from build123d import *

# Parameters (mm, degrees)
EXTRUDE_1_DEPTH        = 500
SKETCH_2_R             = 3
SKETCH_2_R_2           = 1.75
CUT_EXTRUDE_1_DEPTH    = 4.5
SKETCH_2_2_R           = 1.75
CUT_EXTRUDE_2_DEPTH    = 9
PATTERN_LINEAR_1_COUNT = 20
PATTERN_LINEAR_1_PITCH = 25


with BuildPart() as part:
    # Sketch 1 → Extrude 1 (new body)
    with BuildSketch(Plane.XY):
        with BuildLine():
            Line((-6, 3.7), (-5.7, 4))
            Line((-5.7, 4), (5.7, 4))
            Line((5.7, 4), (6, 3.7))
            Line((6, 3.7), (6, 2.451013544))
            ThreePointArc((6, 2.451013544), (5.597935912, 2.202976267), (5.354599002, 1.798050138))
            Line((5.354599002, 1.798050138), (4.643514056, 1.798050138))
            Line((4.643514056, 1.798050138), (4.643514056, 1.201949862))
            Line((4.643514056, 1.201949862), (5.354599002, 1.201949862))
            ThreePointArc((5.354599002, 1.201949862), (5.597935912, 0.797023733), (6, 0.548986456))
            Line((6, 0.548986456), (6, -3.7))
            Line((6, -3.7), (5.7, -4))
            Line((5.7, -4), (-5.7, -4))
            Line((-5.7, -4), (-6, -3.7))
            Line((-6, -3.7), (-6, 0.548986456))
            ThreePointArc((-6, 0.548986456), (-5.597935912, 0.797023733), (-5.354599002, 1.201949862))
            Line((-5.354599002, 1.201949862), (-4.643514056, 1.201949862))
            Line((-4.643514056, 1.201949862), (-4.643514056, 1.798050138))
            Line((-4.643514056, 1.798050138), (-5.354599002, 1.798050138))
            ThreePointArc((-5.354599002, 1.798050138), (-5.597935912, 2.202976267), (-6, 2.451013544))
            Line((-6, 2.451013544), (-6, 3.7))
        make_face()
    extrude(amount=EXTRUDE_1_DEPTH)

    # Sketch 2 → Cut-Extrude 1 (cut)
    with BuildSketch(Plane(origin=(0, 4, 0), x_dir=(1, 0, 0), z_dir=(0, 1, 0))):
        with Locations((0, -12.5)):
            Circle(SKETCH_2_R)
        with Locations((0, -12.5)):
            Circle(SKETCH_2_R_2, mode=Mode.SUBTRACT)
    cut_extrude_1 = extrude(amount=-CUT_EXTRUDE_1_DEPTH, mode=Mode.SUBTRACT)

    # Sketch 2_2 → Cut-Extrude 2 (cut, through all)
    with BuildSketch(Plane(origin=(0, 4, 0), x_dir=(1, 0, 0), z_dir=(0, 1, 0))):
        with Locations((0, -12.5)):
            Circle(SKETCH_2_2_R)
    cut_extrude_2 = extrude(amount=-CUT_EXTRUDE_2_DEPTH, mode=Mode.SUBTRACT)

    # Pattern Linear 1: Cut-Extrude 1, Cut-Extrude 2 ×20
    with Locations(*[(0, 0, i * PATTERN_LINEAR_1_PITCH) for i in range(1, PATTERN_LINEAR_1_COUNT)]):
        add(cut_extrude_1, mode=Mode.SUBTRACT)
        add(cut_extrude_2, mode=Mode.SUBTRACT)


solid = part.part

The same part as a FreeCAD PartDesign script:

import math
import FreeCAD as App
import Part
import Sketcher

doc = App.newDocument("Part")
body = doc.addObject("PartDesign::Body", "Body")

sketch1 = body.newObject("Sketcher::SketchObject", "Sketch")
sketch1.AttachmentSupport = (doc.getObject("XY_Plane"), [""])
sketch1.MapMode = "FlatFace"
sketch1.addGeometry(Part.LineSegment(App.Vector(-5.7, 4, 0), App.Vector(-6, 3.7, 0)), False)
sketch1.addGeometry(Part.LineSegment(App.Vector(-6, 3.7, 0), App.Vector(-6, 2.451014, 0)), False)
sketch1.addGeometry(Part.ArcOfCircle(Part.Circle(App.Vector(-6.309149, 1.5, 0), App.Vector(0, 0, 1), 1), math.radians(17.340528), math.radians(71.992034)), False)
sketch1.addGeometry(Part.LineSegment(App.Vector(-5.354599, 1.79805, 0), App.Vector(-4.643514, 1.79805, 0)), False)
sketch1.addGeometry(Part.LineSegment(App.Vector(-4.643514, 1.79805, 0), App.Vector(-4.643514, 1.20195, 0)), False)
sketch1.addGeometry(Part.LineSegment(App.Vector(-4.643514, 1.20195, 0), App.Vector(-5.354599, 1.20195, 0)), False)
sketch1.addGeometry(Part.ArcOfCircle(Part.Circle(App.Vector(-6.309149, 1.5, 0), App.Vector(0, 0, 1), 1), math.radians(-71.992034), math.radians(-17.340528)), False)
sketch1.addGeometry(Part.LineSegment(App.Vector(-6, 0.548986, 0), App.Vector(-6, -3.7, 0)), False)
sketch1.addGeometry(Part.LineSegment(App.Vector(-6, -3.7, 0), App.Vector(-5.7, -4, 0)), False)
sketch1.addGeometry(Part.LineSegment(App.Vector(-5.7, -4, 0), App.Vector(5.7, -4, 0)), False)
sketch1.addGeometry(Part.LineSegment(App.Vector(5.7, -4, 0), App.Vector(6, -3.7, 0)), False)
sketch1.addGeometry(Part.LineSegment(App.Vector(6, -3.7, 0), App.Vector(6, 0.548986, 0)), False)
sketch1.addGeometry(Part.ArcOfCircle(Part.Circle(App.Vector(6.309149, 1.5, 0), App.Vector(0, 0, 1), 1), math.radians(-162.659472), math.radians(-108.007966)), False)
sketch1.addGeometry(Part.LineSegment(App.Vector(5.354599, 1.20195, 0), App.Vector(4.643514, 1.20195, 0)), False)
sketch1.addGeometry(Part.LineSegment(App.Vector(4.643514, 1.20195, 0), App.Vector(4.643514, 1.79805, 0)), False)
sketch1.addGeometry(Part.LineSegment(App.Vector(4.643514, 1.79805, 0), App.Vector(5.354599, 1.79805, 0)), False)
sketch1.addGeometry(Part.ArcOfCircle(Part.Circle(App.Vector(6.309149, 1.5, 0), App.Vector(0, 0, 1), 1), math.radians(108.007966), math.radians(162.659472)), False)
sketch1.addGeometry(Part.LineSegment(App.Vector(6, 2.451014, 0), App.Vector(6, 3.7, 0)), False)
sketch1.addGeometry(Part.LineSegment(App.Vector(6, 3.7, 0), App.Vector(5.7, 4, 0)), False)
sketch1.addGeometry(Part.LineSegment(App.Vector(5.7, 4, 0), App.Vector(-5.7, 4, 0)), False)
sketch1.addConstraint(Sketcher.Constraint("Coincident", 0, 2, 1, 1))
sketch1.addConstraint(Sketcher.Constraint("Coincident", 1, 2, 2, 2))
sketch1.addConstraint(Sketcher.Constraint("Coincident", 2, 1, 3, 1))
sketch1.addConstraint(Sketcher.Constraint("Coincident", 3, 2, 4, 1))
sketch1.addConstraint(Sketcher.Constraint("Coincident", 4, 2, 5, 1))
sketch1.addConstraint(Sketcher.Constraint("Coincident", 5, 2, 6, 2))
sketch1.addConstraint(Sketcher.Constraint("Coincident", 6, 1, 7, 1))
sketch1.addConstraint(Sketcher.Constraint("Coincident", 7, 2, 8, 1))
sketch1.addConstraint(Sketcher.Constraint("Coincident", 8, 2, 9, 1))
sketch1.addConstraint(Sketcher.Constraint("Coincident", 9, 2, 10, 1))
sketch1.addConstraint(Sketcher.Constraint("Coincident", 10, 2, 11, 1))
sketch1.addConstraint(Sketcher.Constraint("Coincident", 11, 2, 12, 2))
sketch1.addConstraint(Sketcher.Constraint("Coincident", 12, 1, 13, 1))
sketch1.addConstraint(Sketcher.Constraint("Coincident", 13, 2, 14, 1))
sketch1.addConstraint(Sketcher.Constraint("Coincident", 14, 2, 15, 1))
sketch1.addConstraint(Sketcher.Constraint("Coincident", 15, 2, 16, 2))
sketch1.addConstraint(Sketcher.Constraint("Coincident", 16, 1, 17, 1))
sketch1.addConstraint(Sketcher.Constraint("Coincident", 17, 2, 18, 1))
sketch1.addConstraint(Sketcher.Constraint("Coincident", 18, 2, 19, 1))
sketch1.addConstraint(Sketcher.Constraint("Coincident", 19, 2, 0, 1))
sketch1.addConstraint(Sketcher.Constraint("Vertical", 1))
sketch1.addConstraint(Sketcher.Constraint("Horizontal", 3))
sketch1.addConstraint(Sketcher.Constraint("Vertical", 4))
sketch1.addConstraint(Sketcher.Constraint("Horizontal", 5))
sketch1.addConstraint(Sketcher.Constraint("Vertical", 7))
sketch1.addConstraint(Sketcher.Constraint("Horizontal", 9))
sketch1.addConstraint(Sketcher.Constraint("Vertical", 11))
sketch1.addConstraint(Sketcher.Constraint("Horizontal", 13))
sketch1.addConstraint(Sketcher.Constraint("Vertical", 14))
sketch1.addConstraint(Sketcher.Constraint("Horizontal", 15))
sketch1.addConstraint(Sketcher.Constraint("Vertical", 17))
sketch1.addConstraint(Sketcher.Constraint("Horizontal", 19))
sketch1.addConstraint(Sketcher.Constraint("Coincident", 6, 3, 2, 3))
sketch1.addConstraint(Sketcher.Constraint("Coincident", 16, 3, 12, 3))
sketch1.addConstraint(Sketcher.Constraint("Equal", 2, 6))
sketch1.addConstraint(Sketcher.Constraint("Equal", 6, 12))
sketch1.addConstraint(Sketcher.Constraint("Equal", 12, 16))
sketch1.addConstraint(Sketcher.Constraint("Symmetric", 0, 2, 10, 2, -1, 1))
sketch1.addConstraint(Sketcher.Constraint("Symmetric", 7, 2, 17, 2, -1, 1))
sketch1.addConstraint(Sketcher.Constraint("Symmetric", 8, 2, 18, 2, -1, 1))
sketch1.addConstraint(Sketcher.Constraint("Symmetric", 2, 3, 12, 3, -2))
sketch1.addConstraint(Sketcher.Constraint("Symmetric", 7, 2, 10, 2, -2))
sketch1.addConstraint(Sketcher.Constraint("Symmetric", 4, 2, 13, 2, -2))
sketch1.addConstraint(Sketcher.Constraint("Perpendicular", 0, 8))
sketch1.addConstraint(Sketcher.Constraint("Perpendicular", 8, 10))
sketch1.addConstraint(Sketcher.Constraint("Horizontal", 3, 2, 14, 2))
sketch1.addConstraint(Sketcher.Constraint("Vertical", 2, 1, 5, 2))
sketch1.addConstraint(Sketcher.Constraint("Vertical", 9, 2, 18, 2))
sketch1.addConstraint(Sketcher.Constraint("Radius", 2, 1.0))
sketch1.addConstraint(Sketcher.Constraint("DistanceX", 9, 1, 9, 2, 11.4))
sketch1.addConstraint(Sketcher.Constraint("DistanceX", 0, 2, -1, 1, 6.0))
sketch1.addConstraint(Sketcher.Constraint("DistanceY", 8, 2, -1, 1, 4.0))
sketch1.addConstraint(Sketcher.Constraint("DistanceY", -1, 1, 2, 3, 1.5))
sketch1.addConstraint(Sketcher.Constraint("DistanceY", 4, 2, 4, 1, 0.5961))
sketch1.addConstraint(Sketcher.Constraint("DistanceX", 2, 1, -1, 1, 5.354599))
sketch1.addConstraint(Sketcher.Constraint("DistanceX", 3, 1, 3, 2, 0.711085))
pad1 = body.newObject("PartDesign::Pad", "Pad")
pad1.Profile = sketch1
pad1.Length = 500

sketch2 = body.newObject("Sketcher::SketchObject", "Sketch001")
sketch2.AttachmentSupport = (doc.getObject("XZ_Plane"), [""])
sketch2.MapMode = "FlatFace"
sketch2.AttachmentOffset = App.Placement(App.Vector(0, 0, -4), App.Rotation())
sketch2.addGeometry(Part.Circle(App.Vector(0, 12.5, 0), App.Vector(0, 0, 1), 3), False)
sketch2.addGeometry(Part.Circle(App.Vector(0, 12.5, 0), App.Vector(0, 0, 1), 1.75), False)
sketch2.addConstraint(Sketcher.Constraint("Coincident", 1, 3, 0, 3))
sketch2.addConstraint(Sketcher.Constraint("PointOnObject", 0, 3, -2))
sketch2.addConstraint(Sketcher.Constraint("Diameter", 0, 6.0))
sketch2.addConstraint(Sketcher.Constraint("Diameter", 1, 3.5))
sketch2.addConstraint(Sketcher.Constraint("DistanceY", -1, 1, 0, 3, 12.5))
pocket1 = body.newObject("PartDesign::Pocket", "Pocket")
pocket1.Profile = sketch2
pocket1.Length = 4.5
pocket1.Reversed = True

sketch3 = body.newObject("Sketcher::SketchObject", "Sketch002")
sketch3.AttachmentSupport = (doc.getObject("XZ_Plane"), [""])
sketch3.MapMode = "FlatFace"
sketch3.AttachmentOffset = App.Placement(App.Vector(0, 0, -4), App.Rotation())
sketch3.addGeometry(Part.Circle(App.Vector(0, 12.5, 0), App.Vector(0, 0, 1), 1.75), False)
sketch3.addConstraint(Sketcher.Constraint("PointOnObject", 0, 3, -2))
sketch3.addConstraint(Sketcher.Constraint("Diameter", 0, 3.5))
sketch3.addConstraint(Sketcher.Constraint("DistanceY", -1, 1, 0, 3, 12.5))
pocket2 = body.newObject("PartDesign::Pocket", "Pocket001")
pocket2.Profile = sketch3
pocket2.Type = "ThroughAll"
pocket2.Reversed = True
doc.recompute()

linearpattern = body.newObject("PartDesign::LinearPattern", "LinearPattern")
linearpattern.Originals = [pocket1, pocket2]
linearpattern.Direction = (doc.getObject("Z_Axis"), [""])
linearpattern.Mode = "offset"
linearpattern.Offset = 25
linearpattern.Occurrences = 20
body.Tip = linearpattern

doc.recompute()
